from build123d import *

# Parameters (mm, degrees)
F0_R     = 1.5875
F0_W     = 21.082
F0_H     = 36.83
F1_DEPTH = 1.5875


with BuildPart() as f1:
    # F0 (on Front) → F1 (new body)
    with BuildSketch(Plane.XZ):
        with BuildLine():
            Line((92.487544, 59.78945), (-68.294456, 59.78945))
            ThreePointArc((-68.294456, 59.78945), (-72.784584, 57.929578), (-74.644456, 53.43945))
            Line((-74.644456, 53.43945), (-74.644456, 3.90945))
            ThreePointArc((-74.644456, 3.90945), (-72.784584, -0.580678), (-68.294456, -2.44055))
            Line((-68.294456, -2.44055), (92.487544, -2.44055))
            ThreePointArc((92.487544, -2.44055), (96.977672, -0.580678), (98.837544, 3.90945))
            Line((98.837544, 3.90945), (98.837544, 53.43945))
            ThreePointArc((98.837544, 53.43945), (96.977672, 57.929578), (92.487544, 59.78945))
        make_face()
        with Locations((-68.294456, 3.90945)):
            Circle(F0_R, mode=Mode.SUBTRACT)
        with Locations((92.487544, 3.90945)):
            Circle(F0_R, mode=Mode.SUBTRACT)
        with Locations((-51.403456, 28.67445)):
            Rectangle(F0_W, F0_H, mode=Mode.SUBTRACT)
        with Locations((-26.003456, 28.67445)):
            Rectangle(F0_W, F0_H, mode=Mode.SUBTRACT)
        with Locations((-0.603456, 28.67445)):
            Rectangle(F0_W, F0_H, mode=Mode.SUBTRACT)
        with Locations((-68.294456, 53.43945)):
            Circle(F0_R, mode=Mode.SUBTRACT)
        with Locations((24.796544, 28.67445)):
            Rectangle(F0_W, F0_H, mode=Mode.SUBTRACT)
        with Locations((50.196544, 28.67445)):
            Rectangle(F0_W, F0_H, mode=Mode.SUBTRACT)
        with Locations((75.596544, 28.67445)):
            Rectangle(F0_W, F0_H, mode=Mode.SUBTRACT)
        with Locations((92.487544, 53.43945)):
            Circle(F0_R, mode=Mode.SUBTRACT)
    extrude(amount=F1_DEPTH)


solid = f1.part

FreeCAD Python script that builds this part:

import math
import FreeCAD as App
import Part
import Sketcher
from FreeCAD import Vector
Q = App.Units.Quantity

doc = App.newDocument("Part")
params = doc.addObject("Spreadsheet::Sheet", "Params")
for row, (alias, value) in enumerate([
    ("sketch1_radius", "0.25 in"),
    ("sketch1_diameter", "0.125 in"),
    ("sketch1_width", "6.33 in"),
    ("sketch1_width2", "0.83 in"),
    ("sketch1_height", "1.95 in"),
    ("pad1_length", "0.0625 in"),
], start=1):
    params.set(f"A{row}", alias)
    params.set(f"B{row}", "=" + value)
    params.setAlias(f"B{row}", alias)

body = doc.addObject("PartDesign::Body", "Body")

sketch1 = doc.addObject("Sketcher::SketchObject", "Sketch")
body.addObject(sketch1)
sketch1.AttachmentSupport = (doc.XZ_Plane, [""])
sketch1.MapMode = "FlatFace"
sketch1.addGeometry(Part.LineSegment(Vector(92.5, 59.8, 0), Vector(-68.3, 59.8, 0)), False)
sketch1.addGeometry(Part.ArcOfCircle(Part.Circle(Vector(-68.3, 53.4, 0), Vector(0, 0, 1), 6.4), math.radians(90), math.radians(180)), False)
sketch1.addGeometry(Part.LineSegment(Vector(-74.6, 53.4, 0), Vector(-74.6, 3.9, 0)), False)
sketch1.addGeometry(Part.ArcOfCircle(Part.Circle(Vector(-68.3, 3.9, 0), Vector(0, 0, 1), 6.4), math.radians(-180), math.radians(-90)), False)
sketch1.addGeometry(Part.LineSegment(Vector(-68.3, -2.4, 0), Vector(92.5, -2.4, 0)), False)
sketch1.addGeometry(Part.ArcOfCircle(Part.Circle(Vector(92.5, 3.9, 0), Vector(0, 0, 1), 6.4), math.radians(-90), math.radians(0)), False)
sketch1.addGeometry(Part.LineSegment(Vector(98.8, 3.9, 0), Vector(98.8, 53.4, 0)), False)
sketch1.addGeometry(Part.ArcOfCircle(Part.Circle(Vector(92.5, 53.4, 0), Vector(0, 0, 1), 6.4), math.radians(0), math.radians(90)), False)
sketch1.addGeometry(Part.Circle(Vector(-68.3, 3.9, 0), Vector(0, 0, 1), 1.6), False)
sketch1.addGeometry(Part.LineSegment(Vector(-40.9, 10.3, 0), Vector(-61.9, 10.3, 0)), False)
sketch1.addGeometry(Part.LineSegment(Vector(-61.9, 10.3, 0), Vector(-61.9, 47.1, 0)), False)
sketch1.addGeometry(Part.LineSegment(Vector(-61.9, 47.1, 0), Vector(-40.9, 47.1, 0)), False)
sketch1.addGeometry(Part.LineSegment(Vector(-40.9, 47.1, 0), Vector(-40.9, 10.3, 0)), False)
sketch1.addGeometry(Part.LineSegment(Vector(-15.5, 10.3, 0), Vector(-36.5, 10.3, 0)), False)
sketch1.addGeometry(Part.LineSegment(Vector(-36.5, 10.3, 0), Vector(-36.5, 47.1, 0)), False)
sketch1.addGeometry(Part.LineSegment(Vector(-36.5, 47.1, 0), Vector(-15.5, 47.1, 0)), False)
sketch1.addGeometry(Part.LineSegment(Vector(-15.5, 47.1, 0), Vector(-15.5, 10.3, 0)), False)
sketch1.addGeometry(Part.LineSegment(Vector(9.9, 10.3, 0), Vector(-11.1, 10.3, 0)), False)
sketch1.addGeometry(Part.LineSegment(Vector(-11.1, 10.3, 0), Vector(-11.1, 47.1, 0)), False)
sketch1.addGeometry(Part.LineSegment(Vector(-11.1, 47.1, 0), Vector(9.9, 47.1, 0)), False)
sketch1.addGeometry(Part.LineSegment(Vector(9.9, 47.1, 0), Vector(9.9, 10.3, 0)), False)
sketch1.addGeometry(Part.Circle(Vector(92.5, 3.9, 0), Vector(0, 0, 1), 1.6), False)
sketch1.addGeometry(Part.LineSegment(Vector(35.3, 10.3, 0), Vector(14.3, 10.3, 0)), False)
sketch1.addGeometry(Part.LineSegment(Vector(14.3, 10.3, 0), Vector(14.3, 47.1, 0)), False)
sketch1.addGeometry(Part.LineSegment(Vector(14.3, 47.1, 0), Vector(35.3, 47.1, 0)), False)
sketch1.addGeometry(Part.LineSegment(Vector(35.3, 47.1, 0), Vector(35.3, 10.3, 0)), False)
sketch1.addGeometry(Part.LineSegment(Vector(60.7, 10.3, 0), Vector(39.7, 10.3, 0)), False)
sketch1.addGeometry(Part.LineSegment(Vector(39.7, 10.3, 0), Vector(39.7, 47.1, 0)), False)
sketch1.addGeometry(Part.LineSegment(Vector(39.7, 47.1, 0), Vector(60.7, 47.1, 0)), False)
sketch1.addGeometry(Part.LineSegment(Vector(60.7, 47.1, 0), Vector(60.7, 10.3, 0)), False)
sketch1.addGeometry(Part.LineSegment(Vector(86.1, 10.3, 0), Vector(65.1, 10.3, 0)), False)
sketch1.addGeometry(Part.LineSegment(Vector(65.1, 10.3, 0), Vector(65.1, 47.1, 0)), False)
sketch1.addGeometry(Part.LineSegment(Vector(65.1, 47.1, 0), Vector(86.1, 47.1, 0)), False)
sketch1.addGeometry(Part.LineSegment(Vector(86.1, 47.1, 0), Vector(86.1, 10.3, 0)), False)
sketch1.addGeometry(Part.Circle(Vector(-68.3, 53.4, 0), Vector(0, 0, 1), 1.6), False)
sketch1.addGeometry(Part.Circle(Vector(92.5, 53.4, 0), Vector(0, 0, 1), 1.6), False)
sketch1.addConstraint(Sketcher.Constraint("Tangent", 0, 2, 1, 1))
sketch1.addConstraint(Sketcher.Constraint("Tangent", 1, 2, 2, 1))
sketch1.addConstraint(Sketcher.Constraint("Tangent", 2, 2, 3, 1))
sketch1.addConstraint(Sketcher.Constraint("Tangent", 3, 2, 4, 1))
sketch1.addConstraint(Sketcher.Constraint("Tangent", 4, 2, 5, 1))
sketch1.addConstraint(Sketcher.Constraint("Tangent", 5, 2, 6, 1))
sketch1.addConstraint(Sketcher.Constraint("Tangent", 6, 2, 7, 1))
sketch1.addConstraint(Sketcher.Constraint("Tangent", 7, 2, 0, 1))
sketch1.addConstraint(Sketcher.Constraint("Coincident", 9, 2, 10, 1))
sketch1.addConstraint(Sketcher.Constraint("Coincident", 10, 2, 11, 1))
sketch1.addConstraint(Sketcher.Constraint("Coincident", 11, 2, 12, 1))
sketch1.addConstraint(Sketcher.Constraint("Coincident", 12, 2, 9, 1))
sketch1.addConstraint(Sketcher.Constraint("Coincident", 13, 2, 14, 1))
sketch1.addConstraint(Sketcher.Constraint("Coincident", 14, 2, 15, 1))
sketch1.addConstraint(Sketcher.Constraint("Coincident", 15, 2, 16, 1))
sketch1.addConstraint(Sketcher.Constraint("Coincident", 16, 2, 13, 1))
sketch1.addConstraint(Sketcher.Constraint("Coincident", 17, 2, 18, 1))
sketch1.addConstraint(Sketcher.Constraint("Coincident", 18, 2, 19, 1))
sketch1.addConstraint(Sketcher.Constraint("Coincident", 19, 2, 20, 1))
sketch1.addConstraint(Sketcher.Constraint("Coincident", 20, 2, 17, 1))
sketch1.addConstraint(Sketcher.Constraint("Coincident", 22, 2, 23, 1))
sketch1.addConstraint(Sketcher.Constraint("Coincident", 23, 2, 24, 1))
sketch1.addConstraint(Sketcher.Constraint("Coincident", 24, 2, 25, 1))
sketch1.addConstraint(Sketcher.Constraint("Coincident", 25, 2, 22, 1))
sketch1.addConstraint(Sketcher.Constraint("Coincident", 26, 2, 27, 1))
sketch1.addConstraint(Sketcher.Constraint("Coincident", 27, 2, 28, 1))
sketch1.addConstraint(Sketcher.Constraint("Coincident", 28, 2, 29, 1))
sketch1.addConstraint(Sketcher.Constraint("Coincident", 29, 2, 26, 1))
sketch1.addConstraint(Sketcher.Constraint("Coincident", 30, 2, 31, 1))
sketch1.addConstraint(Sketcher.Constraint("Coincident", 31, 2, 32, 1))
sketch1.addConstraint(Sketcher.Constraint("Coincident", 32, 2, 33, 1))
sketch1.addConstraint(Sketcher.Constraint("Coincident", 33, 2, 30, 1))
sketch1.addConstraint(Sketcher.Constraint("Horizontal", 0))
sketch1.addConstraint(Sketcher.Constraint("Vertical", 2))
sketch1.addConstraint(Sketcher.Constraint("Horizontal", 4))
sketch1.addConstraint(Sketcher.Constraint("Vertical", 6))
sketch1.addConstraint(Sketcher.Constraint("Horizontal", 9))
sketch1.addConstraint(Sketcher.Constraint("Vertical", 10))
sketch1.addConstraint(Sketcher.Constraint("Horizontal", 11))
sketch1.addConstraint(Sketcher.Constraint("Vertical", 12))
sketch1.addConstraint(Sketcher.Constraint("Horizontal", 13))
sketch1.addConstraint(Sketcher.Constraint("Vertical", 14))
sketch1.addConstraint(Sketcher.Constraint("Horizontal", 15))
sketch1.addConstraint(Sketcher.Constraint("Vertical", 16))
sketch1.addConstraint(Sketcher.Constraint("Horizontal", 17))
sketch1.addConstraint(Sketcher.Constraint("Vertical", 18))
sketch1.addConstraint(Sketcher.Constraint("Horizontal", 19))
sketch1.addConstraint(Sketcher.Constraint("Vertical", 20))
sketch1.addConstraint(Sketcher.Constraint("Horizontal", 22))
sketch1.addConstraint(Sketcher.Constraint("Vertical", 23))
sketch1.addConstraint(Sketcher.Constraint("Horizontal", 24))
sketch1.addConstraint(Sketcher.Constraint("Vertical", 25))
sketch1.addConstraint(Sketcher.Constraint("Horizontal", 26))
sketch1.addConstraint(Sketcher.Constraint("Vertical", 27))
sketch1.addConstraint(Sketcher.Constraint("Horizontal", 28))
sketch1.addConstraint(Sketcher.Constraint("Vertical", 29))
sketch1.addConstraint(Sketcher.Constraint("Horizontal", 30))
sketch1.addConstraint(Sketcher.Constraint("Vertical", 31))
sketch1.addConstraint(Sketcher.Constraint("Horizontal", 32))
sketch1.addConstraint(Sketcher.Constraint("Vertical", 33))
sketch1.addConstraint(Sketcher.Constraint("Coincident", 8, 3, 3, 3))
sketch1.addConstraint(Sketcher.Constraint("Coincident", 21, 3, 5, 3))
sketch1.addConstraint(Sketcher.Constraint("Coincident", 34, 3, 1, 3))
sketch1.addConstraint(Sketcher.Constraint("Coincident", 35, 3, 7, 3))
sketch1.addConstraint(Sketcher.Constraint("Equal", 1, 3))
sketch1.addConstraint(Sketcher.Constraint("Equal", 3, 5))
sketch1.addConstraint(Sketcher.Constraint("Equal", 5, 7))
sketch1.addConstraint(Sketcher.Constraint("Equal", 8, 21))
sketch1.addConstraint(Sketcher.Constraint("Equal", 21, 34))
sketch1.addConstraint(Sketcher.Constraint("Equal", 34, 35))
sketch1.addConstraint(Sketcher.Constraint("Horizontal", 12, 2, 13, 2))
sketch1.addConstraint(Sketcher.Constraint("Horizontal", 11, 2, 14, 2))
sketch1.addConstraint(Sketcher.Constraint("Horizontal", 16, 2, 17, 2))
sketch1.addConstraint(Sketcher.Constraint("Horizontal", 15, 2, 18, 2))
sketch1.addConstraint(Sketcher.Constraint("Horizontal", 20, 2, 22, 2))
sketch1.addConstraint(Sketcher.Constraint("Horizontal", 19, 2, 23, 2))
sketch1.addConstraint(Sketcher.Constraint("Horizontal", 25, 2, 26, 2))
sketch1.addConstraint(Sketcher.Constraint("Horizontal", 24, 2, 27, 2))
sketch1.addConstraint(Sketcher.Constraint("Horizontal", 29, 2, 30, 2))
sketch1.addConstraint(Sketcher.Constraint("Horizontal", 28, 2, 31, 2))
sketch1.addConstraint(Sketcher.Constraint("Equal", 11, 13))
sketch1.addConstraint(Sketcher.Constraint("Equal", 15, 17))
sketch1.addConstraint(Sketcher.Constraint("Equal", 19, 22))
sketch1.addConstraint(Sketcher.Constraint("Equal", 24, 26))
sketch1.addConstraint(Sketcher.Constraint("Equal", 28, 30))
sketch1.addConstraint(Sketcher.Constraint("Radius", 1, Q("0.25 in")))
sketch1.addConstraint(Sketcher.Constraint("Diameter", 8, Q("0.125 in")))
sketch1.addConstraint(Sketcher.Constraint("DistanceX", 9, 2, 13, 2, Q("1 in")))
sketch1.addConstraint(Sketcher.Constraint("DistanceX", 13, 2, 17, 2, Q("1 in")))
sketch1.addConstraint(Sketcher.Constraint("DistanceX", 17, 2, 22, 2, Q("1 in")))
sketch1.addConstraint(Sketcher.Constraint("DistanceX", 22, 2, 26, 2, Q("1 in")))
sketch1.addConstraint(Sketcher.Constraint("DistanceX", 26, 2, 30, 2, Q("1 in")))
sketch1.addConstraint(Sketcher.Constraint("DistanceX", 0, 2, 0, 1, Q("6.33 in")))
sketch1.addConstraint(Sketcher.Constraint("DistanceX", 9, 2, 9, 1, Q("0.83 in")))
sketch1.addConstraint(Sketcher.Constraint("DistanceY", 2, 2, 2, 1, Q("1.95 in")))
sketch1.addConstraint(Sketcher.Constraint("DistanceY", 10, 1, 10, 2, Q("1.45 in")))
sketch1.addConstraint(Sketcher.Constraint("DistanceY", 3, 2, 9, 2, Q("0.5 in")))
sketch1.addConstraint(Sketcher.Constraint("DistanceX", 2, 2, 9, 2, Q("0.5 in")))
sketch1.addConstraint(Sketcher.Constraint("DistanceY", -1, 1, 1, 3, 53.43945))
sketch1.addConstraint(Sketcher.Constraint("DistanceX", 1, 3, -1, 1, 68.294456))
sketch1.setExpression("Constraints[85]", "Params.sketch1_radius")
sketch1.setExpression("Constraints[86]", "Params.sketch1_diameter")
sketch1.setExpression("Constraints[92]", "Params.sketch1_width")
sketch1.setExpression("Constraints[93]", "Params.sketch1_width2")
sketch1.setExpression("Constraints[94]", "Params.sketch1_height")
pad1 = doc.addObject("PartDesign::Pad", "Pad")
body.addObject(pad1)
pad1.Profile = sketch1
pad1.setExpression("Length", "Params.pad1_length")

doc.recompute()
